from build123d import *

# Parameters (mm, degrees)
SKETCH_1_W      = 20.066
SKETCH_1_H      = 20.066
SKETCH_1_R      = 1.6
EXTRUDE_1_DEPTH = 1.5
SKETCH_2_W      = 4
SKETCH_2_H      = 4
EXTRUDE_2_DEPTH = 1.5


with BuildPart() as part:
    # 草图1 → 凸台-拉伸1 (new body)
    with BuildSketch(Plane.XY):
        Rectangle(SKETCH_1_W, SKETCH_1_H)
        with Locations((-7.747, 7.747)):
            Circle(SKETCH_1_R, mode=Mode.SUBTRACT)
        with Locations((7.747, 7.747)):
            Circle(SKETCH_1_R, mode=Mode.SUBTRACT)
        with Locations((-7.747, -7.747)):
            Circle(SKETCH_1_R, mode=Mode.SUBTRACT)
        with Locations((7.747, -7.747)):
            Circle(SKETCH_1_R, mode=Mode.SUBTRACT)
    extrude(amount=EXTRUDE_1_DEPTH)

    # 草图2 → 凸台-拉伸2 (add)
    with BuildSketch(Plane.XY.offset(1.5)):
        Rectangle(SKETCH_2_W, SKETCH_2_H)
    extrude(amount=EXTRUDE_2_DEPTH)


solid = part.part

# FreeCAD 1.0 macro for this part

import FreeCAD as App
import Part
import Sketcher
from FreeCAD import Vector
Q = App.Units.Quantity

doc = App.newDocument("Part")
body = doc.addObject("PartDesign::Body", "Body")

sketch1 = body.newObject("Sketcher::SketchObject", "Sketch")
sketch1.AttachmentSupport = (doc.getObject("XY_Plane"), [""])
sketch1.MapMode = "FlatFace"
sketch1.addGeometry([
    Part.LineSegment(Vector(-10, 10, 0), Vector(-10, -10, 0)),
    Part.LineSegment(Vector(-10, -10, 0), Vector(10, -10, 0)),
    Part.LineSegment(Vector(10, -10, 0), Vector(10, 10, 0)),
    Part.LineSegment(Vector(10, 10, 0), Vector(-10, 10, 0)),
    Part.Circle(Vector(-7.7, -7.7, 0), Vector(0, 0, 1), 1.6),
    Part.Circle(Vector(7.7, -7.7, 0), Vector(0, 0, 1), 1.6),
    Part.Circle(Vector(-7.7, 7.7, 0), Vector(0, 0, 1), 1.6),
    Part.Circle(Vector(7.7, 7.7, 0), Vector(0, 0, 1), 1.6),
], False)
sketch1.addConstraint([
    Sketcher.Constraint("Coincident", 0, 2, 1, 1),
    Sketcher.Constraint("Coincident", 1, 2, 2, 1),
    Sketcher.Constraint("Coincident", 2, 2, 3, 1),
    Sketcher.Constraint("Coincident", 3, 2, 0, 1),
    Sketcher.Constraint("Vertical", 0),
    Sketcher.Constraint("Horizontal", 1),
    Sketcher.Constraint("Vertical", 2),
    Sketcher.Constraint("Horizontal", 3),
    Sketcher.Constraint("Equal", 4, 5),
    Sketcher.Constraint("Equal", 5, 6),
    Sketcher.Constraint("Equal", 6, 7),
    Sketcher.Constraint("Symmetric", 5, 3, 6, 3, -1, 1),
    Sketcher.Constraint("Symmetric", 4, 3, 7, 3, -1, 1),
    Sketcher.Constraint("Symmetric", 0, 2, 2, 2, -1, 1),
    Sketcher.Constraint("Symmetric", 4, 3, 5, 3, -2),
    Sketcher.Constraint("Equal", 3, 0),
    Sketcher.Constraint("Diameter", 4, Q("3.2 mm")),
    Sketcher.Constraint("DistanceX", 1, 1, 1, 2, Q("20.066 mm")),
    Sketcher.Constraint("DistanceX", 0, 2, 5, 3, Q("17.78 mm")),
    Sketcher.Constraint("DistanceY", 0, 2, 6, 3, Q("17.78 mm")),
])
pad1 = body.newObject("PartDesign::Pad", "Pad")
pad1.Profile = sketch1
pad1.Length = 1.5

sketch2 = body.newObject("Sketcher::SketchObject", "Sketch001")
sketch2.AttachmentSupport = (doc.getObject("XY_Plane"), [""])
sketch2.MapMode = "FlatFace"
sketch2.AttachmentOffset = App.Placement(Vector(0, 0, 1.5), App.Rotation())
sketch2.addGeometry([
    Part.LineSegment(Vector(-2, 2, 0), Vector(-2, -2, 0)),
    Part.LineSegment(Vector(-2, -2, 0), Vector(2, -2, 0)),
    Part.LineSegment(Vector(2, -2, 0), Vector(2, 2, 0)),
    Part.LineSegment(Vector(2, 2, 0), Vector(-2, 2, 0)),
], False)
sketch2.addConstraint([
    Sketcher.Constraint("Coincident", 0, 2, 1, 1),
    Sketcher.Constraint("Coincident", 1, 2, 2, 1),
    Sketcher.Constraint("Coincident", 2, 2, 3, 1),
    Sketcher.Constraint("Coincident", 3, 2, 0, 1),
    Sketcher.Constraint("Vertical", 0),
    Sketcher.Constraint("Horizontal", 1),
    Sketcher.Constraint("Vertical", 2),
    Sketcher.Constraint("Horizontal", 3),
    Sketcher.Constraint("Symmetric", 0, 2, 2, 2, -1, 1),
    Sketcher.Constraint("Equal", 3, 0),
    Sketcher.Constraint("DistanceX", 1, 1, 1, 2, Q("4 mm")),
])
pad2 = body.newObject("PartDesign::Pad", "Pad001")
pad2.Profile = sketch2
pad2.Length = 1.5

doc.recompute()
